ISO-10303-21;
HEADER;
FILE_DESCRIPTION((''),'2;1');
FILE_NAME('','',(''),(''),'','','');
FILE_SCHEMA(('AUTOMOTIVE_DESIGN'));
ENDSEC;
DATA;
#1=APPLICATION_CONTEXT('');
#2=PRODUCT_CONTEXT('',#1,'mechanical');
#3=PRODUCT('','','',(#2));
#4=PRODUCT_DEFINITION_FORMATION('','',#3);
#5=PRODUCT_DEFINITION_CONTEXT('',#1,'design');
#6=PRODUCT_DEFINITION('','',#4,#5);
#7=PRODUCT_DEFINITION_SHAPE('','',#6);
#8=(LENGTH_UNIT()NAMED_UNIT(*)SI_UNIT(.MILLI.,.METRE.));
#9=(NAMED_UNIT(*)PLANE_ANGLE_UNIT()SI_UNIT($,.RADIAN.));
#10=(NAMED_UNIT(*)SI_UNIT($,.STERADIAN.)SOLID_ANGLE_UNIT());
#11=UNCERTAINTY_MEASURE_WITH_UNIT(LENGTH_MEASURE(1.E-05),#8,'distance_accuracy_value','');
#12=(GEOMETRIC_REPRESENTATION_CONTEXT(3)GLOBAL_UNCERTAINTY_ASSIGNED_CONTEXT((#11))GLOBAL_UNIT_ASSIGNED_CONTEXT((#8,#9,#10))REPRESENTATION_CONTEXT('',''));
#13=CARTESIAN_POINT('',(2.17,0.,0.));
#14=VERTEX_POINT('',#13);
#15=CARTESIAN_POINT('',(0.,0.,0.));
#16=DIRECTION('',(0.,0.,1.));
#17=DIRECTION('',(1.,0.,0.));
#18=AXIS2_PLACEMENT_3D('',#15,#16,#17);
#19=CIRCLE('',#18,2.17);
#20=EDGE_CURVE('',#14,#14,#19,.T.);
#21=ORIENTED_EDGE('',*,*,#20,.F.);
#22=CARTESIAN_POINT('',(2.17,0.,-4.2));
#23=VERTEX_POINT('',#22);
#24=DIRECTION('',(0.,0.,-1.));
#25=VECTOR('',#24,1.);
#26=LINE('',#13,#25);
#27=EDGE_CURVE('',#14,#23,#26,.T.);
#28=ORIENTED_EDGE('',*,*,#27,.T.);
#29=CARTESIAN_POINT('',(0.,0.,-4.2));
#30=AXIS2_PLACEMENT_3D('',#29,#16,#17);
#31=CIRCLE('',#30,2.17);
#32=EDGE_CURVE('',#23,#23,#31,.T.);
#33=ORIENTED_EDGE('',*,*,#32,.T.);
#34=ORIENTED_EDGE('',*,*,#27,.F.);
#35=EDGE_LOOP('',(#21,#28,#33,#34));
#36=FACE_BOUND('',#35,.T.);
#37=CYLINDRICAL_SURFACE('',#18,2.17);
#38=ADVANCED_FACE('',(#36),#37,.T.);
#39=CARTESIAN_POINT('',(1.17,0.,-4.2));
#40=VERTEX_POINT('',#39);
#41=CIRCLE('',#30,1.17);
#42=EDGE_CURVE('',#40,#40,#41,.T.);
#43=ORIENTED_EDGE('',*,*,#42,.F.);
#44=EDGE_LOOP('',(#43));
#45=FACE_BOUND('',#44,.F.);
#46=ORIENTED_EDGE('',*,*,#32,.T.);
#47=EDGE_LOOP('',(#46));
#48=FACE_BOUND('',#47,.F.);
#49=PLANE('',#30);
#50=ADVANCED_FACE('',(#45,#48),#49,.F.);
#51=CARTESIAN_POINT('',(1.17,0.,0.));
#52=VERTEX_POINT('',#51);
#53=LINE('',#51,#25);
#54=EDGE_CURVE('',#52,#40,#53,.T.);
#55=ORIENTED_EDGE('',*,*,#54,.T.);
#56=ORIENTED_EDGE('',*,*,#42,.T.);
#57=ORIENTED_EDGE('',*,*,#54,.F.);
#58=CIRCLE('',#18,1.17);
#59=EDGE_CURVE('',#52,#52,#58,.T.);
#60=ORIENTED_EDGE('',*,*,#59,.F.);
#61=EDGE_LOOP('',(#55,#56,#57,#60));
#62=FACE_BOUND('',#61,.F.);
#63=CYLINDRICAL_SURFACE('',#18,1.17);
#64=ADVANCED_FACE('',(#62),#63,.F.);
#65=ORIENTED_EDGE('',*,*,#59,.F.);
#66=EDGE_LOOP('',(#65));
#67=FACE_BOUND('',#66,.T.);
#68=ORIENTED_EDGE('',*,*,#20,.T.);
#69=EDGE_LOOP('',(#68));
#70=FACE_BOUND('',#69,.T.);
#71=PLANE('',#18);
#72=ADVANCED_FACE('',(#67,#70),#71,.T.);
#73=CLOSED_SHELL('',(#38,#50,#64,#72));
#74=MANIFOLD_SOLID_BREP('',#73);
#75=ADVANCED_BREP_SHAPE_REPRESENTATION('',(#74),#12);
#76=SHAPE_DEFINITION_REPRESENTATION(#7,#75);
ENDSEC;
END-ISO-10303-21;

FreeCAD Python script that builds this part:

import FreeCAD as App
import Part
import Sketcher
from FreeCAD import Vector
Q = App.Units.Quantity

doc = App.newDocument("Part")
params = doc.addObject("Spreadsheet::Sheet", "Params")
for row, (alias, value) in enumerate([
    ("sketch1_diameter", "4.34 mm"),
    ("sketch1_diameter2", "2.34 mm"),
    ("pad1_length", "4.2 mm"),
], start=1):
    params.set(f"A{row}", alias)
    params.set(f"B{row}", "=" + value)
    params.setAlias(f"B{row}", alias)

body = doc.addObject("PartDesign::Body", "Body")

# Sketch on XY plane
sketch1 = body.newObject("Sketcher::SketchObject", "Sketch")
sketch1.AttachmentSupport = (doc.getObject("XY_Plane"), [""])
sketch1.MapMode = "FlatFace"
sketch1.addGeometry(Part.Circle(Vector(0, 0, 0), Vector(0, 0, 1), 2.2), False)
sketch1.addGeometry(Part.Circle(Vector(0, 0, 0), Vector(0, 0, 1), 1.2), False)
sketch1.addConstraint(Sketcher.Constraint("Coincident", 0, 3, -1, 1))
sketch1.addConstraint(Sketcher.Constraint("Coincident", 1, 3, -1, 1))
sketch1.addConstraint(Sketcher.Constraint("Diameter", 0, Q("4.34 mm")))
sketch1.addConstraint(Sketcher.Constraint("Diameter", 1, Q("2.34 mm")))
sketch1.setExpression("Constraints[2]", "Params.sketch1_diameter")
sketch1.setExpression("Constraints[3]", "Params.sketch1_diameter2")
pad1 = body.newObject("PartDesign::Pad", "Pad")
pad1.Profile = sketch1
pad1.setExpression("Length", "Params.pad1_length")
pad1.Reversed = True

doc.recompute()
